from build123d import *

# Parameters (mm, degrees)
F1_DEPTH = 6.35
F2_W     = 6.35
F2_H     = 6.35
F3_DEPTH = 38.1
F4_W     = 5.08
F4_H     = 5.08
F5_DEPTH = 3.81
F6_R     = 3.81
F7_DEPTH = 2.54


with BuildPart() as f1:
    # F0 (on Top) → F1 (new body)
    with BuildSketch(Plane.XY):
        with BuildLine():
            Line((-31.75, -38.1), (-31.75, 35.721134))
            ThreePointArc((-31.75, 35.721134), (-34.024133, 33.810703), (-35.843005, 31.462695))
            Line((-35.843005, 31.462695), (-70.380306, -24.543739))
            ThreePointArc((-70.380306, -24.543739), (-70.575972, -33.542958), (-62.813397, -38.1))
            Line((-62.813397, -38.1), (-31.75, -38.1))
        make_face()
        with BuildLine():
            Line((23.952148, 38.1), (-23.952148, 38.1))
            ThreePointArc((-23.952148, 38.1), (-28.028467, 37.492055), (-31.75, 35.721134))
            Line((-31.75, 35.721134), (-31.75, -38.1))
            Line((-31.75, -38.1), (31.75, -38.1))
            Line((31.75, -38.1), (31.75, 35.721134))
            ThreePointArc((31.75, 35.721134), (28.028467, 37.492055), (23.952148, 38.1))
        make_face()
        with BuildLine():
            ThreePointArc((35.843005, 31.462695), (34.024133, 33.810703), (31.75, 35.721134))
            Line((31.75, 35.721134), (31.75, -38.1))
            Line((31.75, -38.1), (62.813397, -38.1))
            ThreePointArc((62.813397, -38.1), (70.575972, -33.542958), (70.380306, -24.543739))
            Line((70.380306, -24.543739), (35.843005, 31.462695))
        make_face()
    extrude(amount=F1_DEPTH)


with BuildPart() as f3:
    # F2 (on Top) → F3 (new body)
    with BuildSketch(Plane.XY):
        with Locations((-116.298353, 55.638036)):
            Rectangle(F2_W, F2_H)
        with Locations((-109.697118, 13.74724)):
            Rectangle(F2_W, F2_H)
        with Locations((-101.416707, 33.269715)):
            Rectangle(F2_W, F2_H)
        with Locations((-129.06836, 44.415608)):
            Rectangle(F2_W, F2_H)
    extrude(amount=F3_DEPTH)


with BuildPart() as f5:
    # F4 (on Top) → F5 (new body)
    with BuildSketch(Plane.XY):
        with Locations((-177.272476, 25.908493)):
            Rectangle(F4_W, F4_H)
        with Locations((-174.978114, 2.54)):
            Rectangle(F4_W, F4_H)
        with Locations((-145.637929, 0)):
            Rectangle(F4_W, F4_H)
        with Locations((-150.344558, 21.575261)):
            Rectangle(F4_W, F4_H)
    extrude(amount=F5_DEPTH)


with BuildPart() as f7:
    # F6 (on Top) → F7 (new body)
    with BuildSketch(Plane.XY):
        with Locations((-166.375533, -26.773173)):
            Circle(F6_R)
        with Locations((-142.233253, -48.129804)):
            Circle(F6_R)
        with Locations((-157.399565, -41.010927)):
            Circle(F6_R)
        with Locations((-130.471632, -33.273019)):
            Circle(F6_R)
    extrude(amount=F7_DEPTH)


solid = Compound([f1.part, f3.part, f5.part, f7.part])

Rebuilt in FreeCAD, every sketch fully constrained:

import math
import FreeCAD as App
import Part
import Sketcher
Q = App.Units.Quantity

doc = App.newDocument("Part")
params = doc.addObject("Spreadsheet::Sheet", "Params")
for row, (alias, value) in enumerate([
    ("sketch1_radius", "0.5499998 in"),
    ("sketch1_radius2", "0.35 in"),
    ("pad1_length", "0.25 in"),
    ("sketch2_width", "0.25 in"),
    ("pad2_length", "1.5 in"),
    ("sketch3_width", "0.2 in"),
    ("pad3_length", "0.15 in"),
    ("sketch4_diameter", "0.3 in"),
    ("pad4_length", "0.1 in"),
], start=1):
    params.set(f"A{row}", alias)
    params.set(f"B{row}", "=" + value)
    params.setAlias(f"B{row}", alias)

body = doc.addObject("PartDesign::Body", "Body")

# Sketch on XY plane
sketch1 = doc.addObject("Sketcher::SketchObject", "Sketch")
body.addObject(sketch1)
sketch1.AttachmentSupport = (doc.XY_Plane, [""])
sketch1.MapMode = "FlatFace"
sketch1.addGeometry(Part.ArcOfCircle(Part.Circle(App.Vector(-23.952152, 24.130002, 0), App.Vector(0, 0, 1), 13.969995), math.radians(123.930402), math.radians(148.339249)), False)
sketch1.addGeometry(Part.LineSegment(App.Vector(-35.843005, 31.462695, 0), App.Vector(-70.380306, -24.543739, 0)), False)
sketch1.addGeometry(Part.ArcOfCircle(Part.Circle(App.Vector(-62.813396, -29.21, 0), App.Vector(0, 0, 1), 8.89), math.radians(148.339251), math.radians(269.999997)), False)
sketch1.addGeometry(Part.LineSegment(App.Vector(-62.813397, -38.1, 0), App.Vector(62.813397, -38.1, 0)), False)
sketch1.addGeometry(Part.ArcOfCircle(Part.Circle(App.Vector(62.813396, -29.21, 0), App.Vector(0, 0, 1), 8.89), math.radians(-89.999997), math.radians(31.660749)), False)
sketch1.addGeometry(Part.LineSegment(App.Vector(70.380306, -24.543739, 0), App.Vector(35.843005, 31.462695, 0)), False)
sketch1.addGeometry(Part.ArcOfCircle(Part.Circle(App.Vector(23.952152, 24.130002, 0), App.Vector(0, 0, 1), 13.969995), math.radians(31.660751), math.radians(56.069598)), False)
sketch1.addGeometry(Part.ArcOfCircle(Part.Circle(App.Vector(23.952147, 24.129999, 0), App.Vector(0, 0, 1), 13.970001), math.radians(56.069587), math.radians(89.999995)), False)
sketch1.addGeometry(Part.LineSegment(App.Vector(23.952148, 38.1, 0), App.Vector(-23.952148, 38.1, 0)), False)
sketch1.addGeometry(Part.ArcOfCircle(Part.Circle(App.Vector(-23.952147, 24.129999, 0), App.Vector(0, 0, 1), 13.970001), math.radians(90.000005), math.radians(123.930413)), False)
sketch1.addConstraint(Sketcher.Constraint("Tangent", 0, 2, 1, 1))
sketch1.addConstraint(Sketcher.Constraint("Tangent", 1, 2, 2, 1))
sketch1.addConstraint(Sketcher.Constraint("Tangent", 2, 2, 3, 1))
sketch1.addConstraint(Sketcher.Constraint("Tangent", 3, 2, 4, 1))
sketch1.addConstraint(Sketcher.Constraint("Tangent", 4, 2, 5, 1))
sketch1.addConstraint(Sketcher.Constraint("Tangent", 5, 2, 6, 1))
sketch1.addConstraint(Sketcher.Constraint("Tangent", 6, 2, 7, 1))
sketch1.addConstraint(Sketcher.Constraint("Tangent", 7, 2, 8, 1))
sketch1.addConstraint(Sketcher.Constraint("Tangent", 8, 2, 9, 1))
sketch1.addConstraint(Sketcher.Constraint("Tangent", 9, 2, 0, 1))
sketch1.addConstraint(Sketcher.Constraint("Horizontal", 3))
sketch1.addConstraint(Sketcher.Constraint("Horizontal", 8))
sketch1.addConstraint(Sketcher.Constraint("Equal", 2, 4))
sketch1.addConstraint(Sketcher.Constraint("Equal", 0, 6))
sketch1.addConstraint(Sketcher.Constraint("Equal", 7, 9))
sketch1.addConstraint(Sketcher.Constraint("Symmetric", 0, 3, 7, 3, -2))
sketch1.addConstraint(Sketcher.Constraint("Horizontal", 1, 2, 4, 2))
sketch1.addConstraint(Sketcher.Constraint("Horizontal", 6, 2, 9, 2))
sketch1.addConstraint(Sketcher.Constraint("Radius", 0, Q("0.5499998 in")))
sketch1.addConstraint(Sketcher.Constraint("Radius", 2, Q("0.35 in")))
sketch1.addConstraint(Sketcher.Constraint("DistanceY", 2, 2, -1, 1, Q("1.5 in")))
sketch1.addConstraint(Sketcher.Constraint("DistanceY", -1, 1, 7, 2, Q("1.5 in")))
sketch1.addConstraint(Sketcher.Constraint("DistanceX", -1, 1, 6, 2, Q("1.25 in")))
sketch1.addConstraint(Sketcher.Constraint("DistanceX", 0, 3, 7, 3, Q("47.904299 mm")))
sketch1.addConstraint(Sketcher.Constraint("DistanceX", 1, 2, 0, 2, Q("34.537301 mm")))
sketch1.setExpression("Constraints[18]", "Params.sketch1_radius")
sketch1.setExpression("Constraints[19]", "Params.sketch1_radius2")
pad1 = doc.addObject("PartDesign::Pad", "Pad")
body.addObject(pad1)
pad1.Profile = sketch1
pad1.setExpression("Length", "Params.pad1_length")
body2 = doc.addObject("PartDesign::Body", "Body001")
body2.AllowCompound = True

# Sketch on XY plane
sketch2 = doc.addObject("Sketcher::SketchObject", "Sketch001")
body2.addObject(sketch2)
sketch2.AttachmentSupport = (doc.getObject("XY_Plane001"), [""])
sketch2.MapMode = "FlatFace"
sketch2.addGeometry(Part.LineSegment(App.Vector(-119.473353, 58.813036, 0), App.Vector(-119.473353, 52.463036, 0)), False)
sketch2.addGeometry(Part.LineSegment(App.Vector(-119.473353, 52.463036, 0), App.Vector(-113.123353, 52.463036, 0)), False)
sketch2.addGeometry(Part.LineSegment(App.Vector(-113.123353, 52.463036, 0), App.Vector(-113.123353, 58.813036, 0)), False)
sketch2.addGeometry(Part.LineSegment(App.Vector(-113.123353, 58.813036, 0), App.Vector(-119.473353, 58.813036, 0)), False)
sketch2.addGeometry(Part.LineSegment(App.Vector(-112.872118, 16.92224, 0), App.Vector(-112.872118, 10.57224, 0)), False)
sketch2.addGeometry(Part.LineSegment(App.Vector(-112.872118, 10.57224, 0), App.Vector(-106.522118, 10.57224, 0)), False)
sketch2.addGeometry(Part.LineSegment(App.Vector(-106.522118, 10.57224, 0), App.Vector(-106.522118, 16.92224, 0)), False)
sketch2.addGeometry(Part.LineSegment(App.Vector(-106.522118, 16.92224, 0), App.Vector(-112.872118, 16.92224, 0)), False)
sketch2.addGeometry(Part.LineSegment(App.Vector(-104.591707, 36.444715, 0), App.Vector(-104.591707, 30.094715, 0)), False)
sketch2.addGeometry(Part.LineSegment(App.Vector(-104.591707, 30.094715, 0), App.Vector(-98.241707, 30.094715, 0)), False)
sketch2.addGeometry(Part.LineSegment(App.Vector(-98.241707, 30.094715, 0), App.Vector(-98.241707, 36.444715, 0)), False)
sketch2.addGeometry(Part.LineSegment(App.Vector(-98.241707, 36.444715, 0), App.Vector(-104.591707, 36.444715, 0)), False)
sketch2.addGeometry(Part.LineSegment(App.Vector(-132.24336, 47.590608, 0), App.Vector(-132.24336, 41.240608, 0)), False)
sketch2.addGeometry(Part.LineSegment(App.Vector(-132.24336, 41.240608, 0), App.Vector(-125.89336, 41.240608, 0)), False)
sketch2.addGeometry(Part.LineSegment(App.Vector(-125.89336, 41.240608, 0), App.Vector(-125.89336, 47.590608, 0)), False)
sketch2.addGeometry(Part.LineSegment(App.Vector(-125.89336, 47.590608, 0), App.Vector(-132.24336, 47.590608, 0)), False)
sketch2.addConstraint(Sketcher.Constraint("Coincident", 0, 2, 1, 1))
sketch2.addConstraint(Sketcher.Constraint("Coincident", 1, 2, 2, 1))
sketch2.addConstraint(Sketcher.Constraint("Coincident", 2, 2, 3, 1))
sketch2.addConstraint(Sketcher.Constraint("Coincident", 3, 2, 0, 1))
sketch2.addConstraint(Sketcher.Constraint("Coincident", 4, 2, 5, 1))
sketch2.addConstraint(Sketcher.Constraint("Coincident", 5, 2, 6, 1))
sketch2.addConstraint(Sketcher.Constraint("Coincident", 6, 2, 7, 1))
sketch2.addConstraint(Sketcher.Constraint("Coincident", 7, 2, 4, 1))
sketch2.addConstraint(Sketcher.Constraint("Coincident", 8, 2, 9, 1))
sketch2.addConstraint(Sketcher.Constraint("Coincident", 9, 2, 10, 1))
sketch2.addConstraint(Sketcher.Constraint("Coincident", 10, 2, 11, 1))
sketch2.addConstraint(Sketcher.Constraint("Coincident", 11, 2, 8, 1))
sketch2.addConstraint(Sketcher.Constraint("Coincident", 12, 2, 13, 1))
sketch2.addConstraint(Sketcher.Constraint("Coincident", 13, 2, 14, 1))
sketch2.addConstraint(Sketcher.Constraint("Coincident", 14, 2, 15, 1))
sketch2.addConstraint(Sketcher.Constraint("Coincident", 15, 2, 12, 1))
sketch2.addConstraint(Sketcher.Constraint("Vertical", 0))
sketch2.addConstraint(Sketcher.Constraint("Horizontal", 1))
sketch2.addConstraint(Sketcher.Constraint("Vertical", 2))
sketch2.addConstraint(Sketcher.Constraint("Horizontal", 3))
sketch2.addConstraint(Sketcher.Constraint("Vertical", 4))
sketch2.addConstraint(Sketcher.Constraint("Horizontal", 5))
sketch2.addConstraint(Sketcher.Constraint("Vertical", 6))
sketch2.addConstraint(Sketcher.Constraint("Horizontal", 7))
sketch2.addConstraint(Sketcher.Constraint("Vertical", 8))
sketch2.addConstraint(Sketcher.Constraint("Horizontal", 9))
sketch2.addConstraint(Sketcher.Constraint("Vertical", 10))
sketch2.addConstraint(Sketcher.Constraint("Horizontal", 11))
sketch2.addConstraint(Sketcher.Constraint("Vertical", 12))
sketch2.addConstraint(Sketcher.Constraint("Horizontal", 13))
sketch2.addConstraint(Sketcher.Constraint("Vertical", 14))
sketch2.addConstraint(Sketcher.Constraint("Horizontal", 15))
sketch2.addConstraint(Sketcher.Constraint("Equal", 3, 5))
sketch2.addConstraint(Sketcher.Constraint("Equal", 7, 9))
sketch2.addConstraint(Sketcher.Constraint("Equal", 11, 13))
sketch2.addConstraint(Sketcher.Constraint("Equal", 15, 0))
sketch2.addConstraint(Sketcher.Constraint("Equal", 2, 4))
sketch2.addConstraint(Sketcher.Constraint("Equal", 6, 8))
sketch2.addConstraint(Sketcher.Constraint("Equal", 10, 12))
sketch2.addConstraint(Sketcher.Constraint("DistanceX", 1, 1, 1, 2, Q("0.25 in")))
sketch2.addConstraint(Sketcher.Constraint("DistanceX", 4, 2, -1, 1, Q("112.872118 mm")))
sketch2.addConstraint(Sketcher.Constraint("DistanceY", -1, 1, 4, 2, Q("10.57224 mm")))
sketch2.addConstraint(Sketcher.Constraint("DistanceX", 12, 2, -1, 1, Q("132.24336 mm")))
sketch2.addConstraint(Sketcher.Constraint("DistanceY", -1, 1, 12, 2, Q("41.240608 mm")))
sketch2.addConstraint(Sketcher.Constraint("DistanceX", 6, 2, 8, 2, Q("1.930411 mm")))
sketch2.addConstraint(Sketcher.Constraint("DistanceY", 8, 2, 1, 2, Q("22.368321 mm")))
sketch2.addConstraint(Sketcher.Constraint("DistanceY", 12, 2, 0, 2, Q("11.222428 mm")))
sketch2.addConstraint(Sketcher.Constraint("DistanceX", 0, 2, -1, 1, Q("119.473353 mm")))
sketch2.setExpression("Constraints[39]", "Params.sketch2_width")
pad2 = doc.addObject("PartDesign::Pad", "Pad001")
body2.addObject(pad2)
pad2.Profile = sketch2
pad2.setExpression("Length", "Params.pad2_length")
body3 = doc.addObject("PartDesign::Body", "Body002")
body3.AllowCompound = True

# Sketch on XY plane
sketch3 = doc.addObject("Sketcher::SketchObject", "Sketch002")
body3.addObject(sketch3)
sketch3.AttachmentSupport = (doc.getObject("XY_Plane002"), [""])
sketch3.MapMode = "FlatFace"
sketch3.addGeometry(Part.LineSegment(App.Vector(-179.812476, 28.448493, 0), App.Vector(-179.812476, 23.368493, 0)), False)
sketch3.addGeometry(Part.LineSegment(App.Vector(-179.812476, 23.368493, 0), App.Vector(-174.732476, 23.368493, 0)), False)
sketch3.addGeometry(Part.LineSegment(App.Vector(-174.732476, 23.368493, 0), App.Vector(-174.732476, 28.448493, 0)), False)
sketch3.addGeometry(Part.LineSegment(App.Vector(-174.732476, 28.448493, 0), App.Vector(-179.812476, 28.448493, 0)), False)
sketch3.addGeometry(Part.LineSegment(App.Vector(-177.518114, 5.08, 0), App.Vector(-177.518114, 0, 0)), False)
sketch3.addGeometry(Part.LineSegment(App.Vector(-177.518114, 0, 0), App.Vector(-172.438114, 0, 0)), False)
sketch3.addGeometry(Part.LineSegment(App.Vector(-172.438114, 0, 0), App.Vector(-172.438114, 5.08, 0)), False)
sketch3.addGeometry(Part.LineSegment(App.Vector(-172.438114, 5.08, 0), App.Vector(-177.518114, 5.08, 0)), False)
sketch3.addGeometry(Part.LineSegment(App.Vector(-148.177929, 2.54, 0), App.Vector(-148.177929, -2.54, 0)), False)
sketch3.addGeometry(Part.LineSegment(App.Vector(-148.177929, -2.54, 0), App.Vector(-143.097929, -2.54, 0)), False)
sketch3.addGeometry(Part.LineSegment(App.Vector(-143.097929, -2.54, 0), App.Vector(-143.097929, 2.54, 0)), False)
sketch3.addGeometry(Part.LineSegment(App.Vector(-143.097929, 2.54, 0), App.Vector(-148.177929, 2.54, 0)), False)
sketch3.addGeometry(Part.LineSegment(App.Vector(-152.884558, 24.115261, 0), App.Vector(-152.884558, 19.035261, 0)), False)
sketch3.addGeometry(Part.LineSegment(App.Vector(-152.884558, 19.035261, 0), App.Vector(-147.804558, 19.035261, 0)), False)
sketch3.addGeometry(Part.LineSegment(App.Vector(-147.804558, 19.035261, 0), App.Vector(-147.804558, 24.115261, 0)), False)
sketch3.addGeometry(Part.LineSegment(App.Vector(-147.804558, 24.115261, 0), App.Vector(-152.884558, 24.115261, 0)), False)
sketch3.addConstraint(Sketcher.Constraint("Coincident", 0, 2, 1, 1))
sketch3.addConstraint(Sketcher.Constraint("Coincident", 1, 2, 2, 1))
sketch3.addConstraint(Sketcher.Constraint("Coincident", 2, 2, 3, 1))
sketch3.addConstraint(Sketcher.Constraint("Coincident", 3, 2, 0, 1))
sketch3.addConstraint(Sketcher.Constraint("Coincident", 4, 2, 5, 1))
sketch3.addConstraint(Sketcher.Constraint("Coincident", 5, 2, 6, 1))
sketch3.addConstraint(Sketcher.Constraint("Coincident", 6, 2, 7, 1))
sketch3.addConstraint(Sketcher.Constraint("Coincident", 7, 2, 4, 1))
sketch3.addConstraint(Sketcher.Constraint("Coincident", 8, 2, 9, 1))
sketch3.addConstraint(Sketcher.Constraint("Coincident", 9, 2, 10, 1))
sketch3.addConstraint(Sketcher.Constraint("Coincident", 10, 2, 11, 1))
sketch3.addConstraint(Sketcher.Constraint("Coincident", 11, 2, 8, 1))
sketch3.addConstraint(Sketcher.Constraint("Coincident", 12, 2, 13, 1))
sketch3.addConstraint(Sketcher.Constraint("Coincident", 13, 2, 14, 1))
sketch3.addConstraint(Sketcher.Constraint("Coincident", 14, 2, 15, 1))
sketch3.addConstraint(Sketcher.Constraint("Coincident", 15, 2, 12, 1))
sketch3.addConstraint(Sketcher.Constraint("Vertical", 0))
sketch3.addConstraint(Sketcher.Constraint("Horizontal", 1))
sketch3.addConstraint(Sketcher.Constraint("Vertical", 2))
sketch3.addConstraint(Sketcher.Constraint("Horizontal", 3))
sketch3.addConstraint(Sketcher.Constraint("Vertical", 4))
sketch3.addConstraint(Sketcher.Constraint("Horizontal", 5))
sketch3.addConstraint(Sketcher.Constraint("Vertical", 6))
sketch3.addConstraint(Sketcher.Constraint("Horizontal", 7))
sketch3.addConstraint(Sketcher.Constraint("Vertical", 8))
sketch3.addConstraint(Sketcher.Constraint("Horizontal", 9))
sketch3.addConstraint(Sketcher.Constraint("Vertical", 10))
sketch3.addConstraint(Sketcher.Constraint("Horizontal", 11))
sketch3.addConstraint(Sketcher.Constraint("Vertical", 12))
sketch3.addConstraint(Sketcher.Constraint("Horizontal", 13))
sketch3.addConstraint(Sketcher.Constraint("Vertical", 14))
sketch3.addConstraint(Sketcher.Constraint("Horizontal", 15))
sketch3.addConstraint(Sketcher.Constraint("PointOnObject", 4, 2, -1))
sketch3.addConstraint(Sketcher.Constraint("Equal", 3, 5))
sketch3.addConstraint(Sketcher.Constraint("Equal", 7, 9))
sketch3.addConstraint(Sketcher.Constraint("Equal", 11, 13))
sketch3.addConstraint(Sketcher.Constraint("Equal", 15, 0))
sketch3.addConstraint(Sketcher.Constraint("Equal", 2, 4))
sketch3.addConstraint(Sketcher.Constraint("Equal", 6, 8))
sketch3.addConstraint(Sketcher.Constraint("Equal", 10, 12))
sketch3.addConstraint(Sketcher.Constraint("DistanceX", 1, 1, 1, 2, Q("0.2 in")))
sketch3.addConstraint(Sketcher.Constraint("DistanceY", 8, 2, -1, 1, Q("0.1 in")))
sketch3.addConstraint(Sketcher.Constraint("DistanceX", 8, 2, -1, 1, Q("148.177929 mm")))
sketch3.addConstraint(Sketcher.Constraint("DistanceX", 12, 2, -1, 1, Q("152.884558 mm")))
sketch3.addConstraint(Sketcher.Constraint("DistanceY", -1, 1, 12, 2, Q("19.035261 mm")))
sketch3.addConstraint(Sketcher.Constraint("DistanceX", 4, 2, 1, 2, Q("2.785638 mm")))
sketch3.addConstraint(Sketcher.Constraint("DistanceX", 0, 2, -1, 1, Q("179.812476 mm")))
sketch3.addConstraint(Sketcher.Constraint("DistanceY", -1, 1, 0, 2, Q("23.368493 mm")))
sketch3.setExpression("Constraints[40]", "Params.sketch3_width")
pad3 = doc.addObject("PartDesign::Pad", "Pad002")
body3.addObject(pad3)
pad3.Profile = sketch3
pad3.setExpression("Length", "Params.pad3_length")
body4 = doc.addObject("PartDesign::Body", "Body003")
body4.AllowCompound = True

# Sketch on XY plane
sketch4 = doc.addObject("Sketcher::SketchObject", "Sketch003")
body4.addObject(sketch4)
sketch4.AttachmentSupport = (doc.getObject("XY_Plane003"), [""])
sketch4.MapMode = "FlatFace"
sketch4.addGeometry(Part.Circle(App.Vector(-166.375533, -26.773173, 0), App.Vector(0, 0, 1), 3.81), False)
sketch4.addGeometry(Part.Circle(App.Vector(-142.233253, -48.129804, 0), App.Vector(0, 0, 1), 3.81), False)
sketch4.addGeometry(Part.Circle(App.Vector(-157.399565, -41.010927, 0), App.Vector(0, 0, 1), 3.81), False)
sketch4.addGeometry(Part.Circle(App.Vector(-130.471632, -33.273019, 0), App.Vector(0, 0, 1), 3.81), False)
sketch4.addConstraint(Sketcher.Constraint("Equal", 0, 1))
sketch4.addConstraint(Sketcher.Constraint("Equal", 1, 2))
sketch4.addConstraint(Sketcher.Constraint("Equal", 2, 3))
sketch4.addConstraint(Sketcher.Constraint("Diameter", 0, Q("0.3 in")))
sketch4.addConstraint(Sketcher.Constraint("DistanceX", 0, 3, 3, 3, Q("35.903901 mm")))
sketch4.addConstraint(Sketcher.Constraint("DistanceX", 3, 3, -1, 1, Q("130.471632 mm")))
sketch4.addConstraint(Sketcher.Constraint("DistanceY", 3, 3, -1, 1, Q("33.273019 mm")))
sketch4.addConstraint(Sketcher.Constraint("DistanceX", 0, 3, 1, 3, Q("24.14228 mm")))
sketch4.addConstraint(Sketcher.Constraint("DistanceY", 1, 3, 0, 3, Q("21.356631 mm")))
sketch4.addConstraint(Sketcher.Constraint("DistanceY", 2, 3, 3, 3, Q("7.737908 mm")))
sketch4.addConstraint(Sketcher.Constraint("DistanceY", 0, 3, -1, 1, Q("26.773173 mm")))
sketch4.addConstraint(Sketcher.Constraint("DistanceX", 2, 3, -1, 1, Q("157.399565 mm")))
sketch4.setExpression("Constraints[3]", "Params.sketch4_diameter")
pad4 = doc.addObject("PartDesign::Pad", "Pad003")
body4.addObject(pad4)
pad4.Profile = sketch4
pad4.setExpression("Length", "Params.pad4_length")

doc.recompute()
